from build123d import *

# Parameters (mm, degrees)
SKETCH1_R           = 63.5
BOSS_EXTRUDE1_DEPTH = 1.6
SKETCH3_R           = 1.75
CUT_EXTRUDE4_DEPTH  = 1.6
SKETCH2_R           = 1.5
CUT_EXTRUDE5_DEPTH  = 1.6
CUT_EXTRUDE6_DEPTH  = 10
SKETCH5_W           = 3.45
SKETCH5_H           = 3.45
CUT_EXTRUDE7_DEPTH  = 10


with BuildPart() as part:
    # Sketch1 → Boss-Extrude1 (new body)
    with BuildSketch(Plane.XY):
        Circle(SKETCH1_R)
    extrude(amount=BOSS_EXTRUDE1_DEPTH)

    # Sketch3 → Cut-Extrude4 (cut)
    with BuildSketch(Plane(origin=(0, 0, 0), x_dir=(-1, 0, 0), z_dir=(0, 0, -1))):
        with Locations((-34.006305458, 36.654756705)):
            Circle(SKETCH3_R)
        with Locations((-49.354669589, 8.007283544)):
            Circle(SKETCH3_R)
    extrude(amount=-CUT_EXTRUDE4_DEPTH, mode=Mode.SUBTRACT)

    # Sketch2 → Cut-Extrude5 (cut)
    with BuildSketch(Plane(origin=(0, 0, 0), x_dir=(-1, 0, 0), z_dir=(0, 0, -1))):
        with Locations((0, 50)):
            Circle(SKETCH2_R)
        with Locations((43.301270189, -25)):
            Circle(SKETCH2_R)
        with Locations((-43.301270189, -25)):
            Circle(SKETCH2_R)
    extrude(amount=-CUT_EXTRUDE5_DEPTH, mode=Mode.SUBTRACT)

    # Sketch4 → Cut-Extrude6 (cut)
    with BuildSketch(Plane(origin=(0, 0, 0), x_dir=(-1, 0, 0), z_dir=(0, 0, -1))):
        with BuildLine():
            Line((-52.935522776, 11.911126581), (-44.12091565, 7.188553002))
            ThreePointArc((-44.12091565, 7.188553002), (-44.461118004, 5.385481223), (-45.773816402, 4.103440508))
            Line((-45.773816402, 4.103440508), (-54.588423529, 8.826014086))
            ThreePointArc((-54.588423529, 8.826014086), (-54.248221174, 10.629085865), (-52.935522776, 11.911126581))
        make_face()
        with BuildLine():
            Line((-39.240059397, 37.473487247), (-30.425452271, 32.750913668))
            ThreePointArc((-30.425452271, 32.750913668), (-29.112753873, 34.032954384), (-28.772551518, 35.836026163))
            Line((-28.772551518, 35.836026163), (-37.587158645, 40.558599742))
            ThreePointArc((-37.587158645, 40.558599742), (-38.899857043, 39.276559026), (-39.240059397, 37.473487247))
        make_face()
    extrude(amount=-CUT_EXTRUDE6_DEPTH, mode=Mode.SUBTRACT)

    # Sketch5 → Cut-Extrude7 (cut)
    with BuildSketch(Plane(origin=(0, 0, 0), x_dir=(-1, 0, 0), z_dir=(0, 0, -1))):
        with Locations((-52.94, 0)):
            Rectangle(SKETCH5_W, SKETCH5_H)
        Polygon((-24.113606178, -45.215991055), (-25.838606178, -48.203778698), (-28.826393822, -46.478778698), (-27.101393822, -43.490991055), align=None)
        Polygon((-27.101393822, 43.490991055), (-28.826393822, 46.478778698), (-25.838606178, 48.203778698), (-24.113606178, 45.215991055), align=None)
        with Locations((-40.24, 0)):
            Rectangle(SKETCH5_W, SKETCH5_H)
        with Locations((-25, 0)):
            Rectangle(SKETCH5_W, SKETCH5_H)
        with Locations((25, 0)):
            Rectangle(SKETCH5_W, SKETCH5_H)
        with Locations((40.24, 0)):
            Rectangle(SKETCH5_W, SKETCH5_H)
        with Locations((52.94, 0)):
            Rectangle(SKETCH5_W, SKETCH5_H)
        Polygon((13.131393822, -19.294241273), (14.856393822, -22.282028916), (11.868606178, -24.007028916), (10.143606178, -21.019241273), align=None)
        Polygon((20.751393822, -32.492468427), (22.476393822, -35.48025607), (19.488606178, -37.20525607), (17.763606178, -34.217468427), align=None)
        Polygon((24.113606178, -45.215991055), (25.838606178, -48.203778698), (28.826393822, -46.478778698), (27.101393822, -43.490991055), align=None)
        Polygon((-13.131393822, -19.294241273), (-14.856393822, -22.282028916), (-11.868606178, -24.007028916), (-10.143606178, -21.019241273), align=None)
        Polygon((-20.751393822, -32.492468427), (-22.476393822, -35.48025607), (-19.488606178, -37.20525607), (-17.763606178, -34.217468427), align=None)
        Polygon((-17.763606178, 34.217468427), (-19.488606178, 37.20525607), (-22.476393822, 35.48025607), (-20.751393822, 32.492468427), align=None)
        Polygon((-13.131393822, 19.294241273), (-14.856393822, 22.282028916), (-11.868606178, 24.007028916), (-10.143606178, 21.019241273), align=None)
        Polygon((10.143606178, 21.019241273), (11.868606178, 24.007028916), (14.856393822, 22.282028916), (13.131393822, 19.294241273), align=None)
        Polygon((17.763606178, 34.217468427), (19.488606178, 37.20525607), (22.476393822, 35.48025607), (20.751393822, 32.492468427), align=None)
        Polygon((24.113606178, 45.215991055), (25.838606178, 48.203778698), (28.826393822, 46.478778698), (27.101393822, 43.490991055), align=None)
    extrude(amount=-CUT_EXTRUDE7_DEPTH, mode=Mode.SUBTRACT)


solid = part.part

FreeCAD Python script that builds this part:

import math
import FreeCAD as App
import Part
import Sketcher
Q = App.Units.Quantity


def add_polygon(sketch, points):
    """Adds a closed chain of lines whose ends are joined by coincident constraints."""
    first, n = sketch.GeometryCount, len(points)
    for a, b in zip(points, points[1:] + points[:1]):
        sketch.addGeometry(Part.LineSegment(App.Vector(*a, 0), App.Vector(*b, 0)), False)
    for i in range(n):
        sketch.addConstraint(Sketcher.Constraint("Coincident", first + i, 2, first + (i + 1) % n, 1))

doc = App.newDocument("Part")
body = doc.addObject("PartDesign::Body", "Body")

sketch1 = doc.addObject("Sketcher::SketchObject", "Sketch")
body.addObject(sketch1)
sketch1.AttachmentSupport = (doc.XY_Plane, [""])
sketch1.MapMode = "FlatFace"
sketch1.addGeometry(Part.Circle(App.Vector(0, 0, 0), App.Vector(0, 0, 1), 64), False)
sketch1.addConstraint([
    Sketcher.Constraint("Coincident", 0, 3, -1, 1),
    Sketcher.Constraint("Diameter", 0, Q("127 mm")),
])
pad1 = doc.addObject("PartDesign::Pad", "Pad")
body.addObject(pad1)
pad1.Profile = sketch1
pad1.Length = 1.6

sketch2 = doc.addObject("Sketcher::SketchObject", "Sketch001")
body.addObject(sketch2)
sketch2.AttachmentSupport = (doc.XY_Plane, [""])
sketch2.MapMode = "FlatFace"
sketch2.addGeometry([
    Part.Circle(App.Vector(34, 36.7, 0), App.Vector(0, 0, 1), 1.8),
    Part.Circle(App.Vector(49.4, 8, 0), App.Vector(0, 0, 1), 1.8),
], False)
sketch2.addConstraint([
    Sketcher.Constraint("Equal", 0, 1),
    Sketcher.Constraint("Diameter", 0, Q("3.5 mm")),
    Sketcher.Constraint("DistanceX", -1, 1, 1, 3, Q("49.35467 mm")),
    Sketcher.Constraint("DistanceX", -1, 1, 0, 3, Q("34.006305 mm")),
    Sketcher.Constraint("DistanceY", -1, 1, 0, 3, Q("36.654757 mm")),
    Sketcher.Constraint("DistanceY", -1, 1, 1, 3, Q("8.007284 mm")),
])
pocket1 = doc.addObject("PartDesign::Pocket", "Pocket")
body.addObject(pocket1)
pocket1.Profile = sketch2
pocket1.Length = 1.6
pocket1.Reversed = True

sketch3 = doc.addObject("Sketcher::SketchObject", "Sketch002")
body.addObject(sketch3)
sketch3.AttachmentSupport = (doc.XY_Plane, [""])
sketch3.MapMode = "FlatFace"
sketch3.addGeometry([
    Part.Circle(App.Vector(0, 50, 0), App.Vector(0, 0, 1), 1.5),
    Part.Circle(App.Vector(-43.3, -25, 0), App.Vector(0, 0, 1), 1.5),
    Part.Circle(App.Vector(43.3, -25, 0), App.Vector(0, 0, 1), 1.5),
], False)
sketch3.addConstraint([
    Sketcher.Constraint("Equal", 0, 1),
    Sketcher.Constraint("Equal", 1, 2),
    Sketcher.Constraint("Symmetric", 1, 3, 2, 3, -2),
    Sketcher.Constraint("PointOnObject", 0, 3, -2),
    Sketcher.Constraint("Diameter", 0, Q("3 mm")),
    Sketcher.Constraint("DistanceY", -1, 1, 0, 3, Q("50 mm")),
    Sketcher.Constraint("DistanceY", 1, 3, -1, 1, Q("25 mm")),
    Sketcher.Constraint("DistanceX", 1, 3, -1, 1, Q("43.30127 mm")),
])
pocket2 = doc.addObject("PartDesign::Pocket", "Pocket001")
body.addObject(pocket2)
pocket2.Profile = sketch3
pocket2.Length = 1.6
pocket2.Reversed = True

sketch4 = doc.addObject("Sketcher::SketchObject", "Sketch003")
body.addObject(sketch4)
sketch4.AttachmentSupport = (doc.XY_Plane, [""])
sketch4.MapMode = "FlatFace"
sketch4.addGeometry([
    Part.LineSegment(App.Vector(44.1, 7.2, 0), App.Vector(52.9, 11.9, 0)),
    Part.ArcOfCircle(Part.Circle(App.Vector(51.6, 9.2, 0), App.Vector(0, 0, 1), 3.1), math.radians(-7), math.radians(63)),
    Part.LineSegment(App.Vector(54.6, 8.8, 0), App.Vector(45.8, 4.1, 0)),
    Part.ArcOfCircle(Part.Circle(App.Vector(47.2, 6.8, 0), App.Vector(0, 0, 1), 3.1), math.radians(173), math.radians(243)),
    Part.LineSegment(App.Vector(39.2, 37.5, 0), App.Vector(30.4, 32.8, 0)),
    Part.ArcOfCircle(Part.Circle(App.Vector(31.8, 35.5, 0), App.Vector(0, 0, 1), 3.1), math.radians(173), math.radians(243)),
    Part.LineSegment(App.Vector(28.8, 35.8, 0), App.Vector(37.6, 40.6, 0)),
    Part.ArcOfCircle(Part.Circle(App.Vector(36.2, 37.8, 0), App.Vector(0, 0, 1), 3.1), math.radians(-7), math.radians(63)),
], False)
sketch4.addConstraint([
    Sketcher.Constraint("Coincident", 0, 2, 1, 2),
    Sketcher.Constraint("Coincident", 1, 1, 2, 1),
    Sketcher.Constraint("Coincident", 2, 2, 3, 2),
    Sketcher.Constraint("Coincident", 3, 1, 0, 1),
    Sketcher.Constraint("Coincident", 4, 2, 5, 2),
    Sketcher.Constraint("Coincident", 5, 1, 6, 1),
    Sketcher.Constraint("Coincident", 6, 2, 7, 2),
    Sketcher.Constraint("Coincident", 7, 1, 4, 1),
    Sketcher.Constraint("Equal", 1, 3),
    Sketcher.Constraint("Equal", 3, 5),
    Sketcher.Constraint("Equal", 5, 7),
    Sketcher.Constraint("Parallel", 0, 2),
    Sketcher.Constraint("Parallel", 2, 4),
    Sketcher.Constraint("Parallel", 4, 6),
    Sketcher.Constraint("Equal", 0, 2),
    Sketcher.Constraint("Equal", 2, 4),
    Sketcher.Constraint("Equal", 4, 6),
    Sketcher.Constraint("Distance", 0, Q("10 mm")),
    Sketcher.Constraint("Radius", 1, Q("3.051639 mm")),
    Sketcher.Constraint("DistanceY", -1, 1, 7, 3, Q("37.8354 mm")),
    Sketcher.Constraint("DistanceY", -1, 1, 6, 2, Q("40.5586 mm")),
    Sketcher.Constraint("DistanceX", 1, 3, 0, 2, Q("1.377201 mm")),
    Sketcher.Constraint("DistanceX", 0, 2, 1, 1, Q("1.652901 mm")),
    Sketcher.Constraint("DistanceY", 1, 1, 5, 3, Q("26.648099 mm")),
    Sketcher.Constraint("DistanceX", 5, 1, 4, 2, Q("1.652901 mm")),
    Sketcher.Constraint("DistanceX", -1, 1, 1, 3, Q("51.558321 mm")),
    Sketcher.Constraint("DistanceY", -1, 1, 3, 3, Q("6.82664 mm")),
    Sketcher.Constraint("DistanceX", -1, 1, 5, 1, Q("28.772552 mm")),
])
pocket3 = doc.addObject("PartDesign::Pocket", "Pocket002")
body.addObject(pocket3)
pocket3.Profile = sketch4
pocket3.Length = 10
pocket3.Reversed = True

sketch5 = doc.addObject("Sketcher::SketchObject", "Sketch004")
body.addObject(sketch5)
sketch5.AttachmentSupport = (doc.XY_Plane, [""])
sketch5.MapMode = "FlatFace"
add_polygon(sketch5, [(54.7, 1.7), (54.7, -1.7), (51.2, -1.7), (51.2, 1.7)])
add_polygon(sketch5, [(25.8, -48.2), (24.1, -45.2), (27.1, -43.5), (28.8, -46.5)])
add_polygon(sketch5, [(28.8, 46.5), (27.1, 43.5), (24.1, 45.2), (25.8, 48.2)])
add_polygon(sketch5, [(42, 1.7), (42, -1.7), (38.5, -1.7), (38.5, 1.7)])
add_polygon(sketch5, [(26.7, 1.7), (26.7, -1.7), (23.3, -1.7), (23.3, 1.7)])
add_polygon(sketch5, [(-23.3, 1.7), (-23.3, -1.7), (-26.7, -1.7), (-26.7, 1.7)])
add_polygon(sketch5, [(-38.5, 1.7), (-38.5, -1.7), (-42, -1.7), (-42, 1.7)])
add_polygon(sketch5, [(-51.2, 1.7), (-51.2, -1.7), (-54.7, -1.7), (-54.7, 1.7)])
add_polygon(sketch5, [(-14.9, -22.3), (-13.1, -19.3), (-10.1, -21), (-11.9, -24)])
add_polygon(sketch5, [(-22.5, -35.5), (-20.8, -32.5), (-17.8, -34.2), (-19.5, -37.2)])
add_polygon(sketch5, [(-24.1, -45.2), (-25.8, -48.2), (-28.8, -46.5), (-27.1, -43.5)])
add_polygon(sketch5, [(13.1, -19.3), (14.9, -22.3), (11.9, -24), (10.1, -21)])
add_polygon(sketch5, [(20.8, -32.5), (22.5, -35.5), (19.5, -37.2), (17.8, -34.2)])
add_polygon(sketch5, [(17.8, 34.2), (19.5, 37.2), (22.5, 35.5), (20.8, 32.5)])
add_polygon(sketch5, [(14.9, 22.3), (13.1, 19.3), (10.1, 21), (11.9, 24)])
add_polygon(sketch5, [(-11.9, 24), (-10.1, 21), (-13.1, 19.3), (-14.9, 22.3)])
add_polygon(sketch5, [(-19.5, 37.2), (-17.8, 34.2), (-20.8, 32.5), (-22.5, 35.5)])
add_polygon(sketch5, [(-25.8, 48.2), (-24.1, 45.2), (-27.1, 43.5), (-28.8, 46.5)])
sketch5.addConstraint([
    Sketcher.Constraint("Vertical", 0),
    Sketcher.Constraint("Horizontal", 1),
    Sketcher.Constraint("Vertical", 2),
    Sketcher.Constraint("Horizontal", 3),
    Sketcher.Constraint("Vertical", 12),
    Sketcher.Constraint("Horizontal", 13),
    Sketcher.Constraint("Vertical", 14),
    Sketcher.Constraint("Horizontal", 15),
    Sketcher.Constraint("Vertical", 16),
    Sketcher.Constraint("Horizontal", 17),
    Sketcher.Constraint("Vertical", 18),
    Sketcher.Constraint("Horizontal", 19),
    Sketcher.Constraint("Vertical", 20),
    Sketcher.Constraint("Horizontal", 21),
    Sketcher.Constraint("Vertical", 22),
    Sketcher.Constraint("Horizontal", 23),
    Sketcher.Constraint("Vertical", 24),
    Sketcher.Constraint("Horizontal", 25),
    Sketcher.Constraint("Vertical", 26),
    Sketcher.Constraint("Horizontal", 27),
    Sketcher.Constraint("Vertical", 28),
    Sketcher.Constraint("Horizontal", 29),
    Sketcher.Constraint("Vertical", 30),
    Sketcher.Constraint("Horizontal", 31),
    Sketcher.Constraint("Symmetric", 18, 2, 20, 2, -1, 1),
    Sketcher.Constraint("Symmetric", 16, 2, 22, 2, -1, 1),
    Sketcher.Constraint("Symmetric", 14, 2, 24, 2, -1, 1),
    Sketcher.Constraint("Symmetric", 12, 2, 26, 2, -1, 1),
    Sketcher.Constraint("Symmetric", 2, 2, 28, 2, -1, 1),
    Sketcher.Constraint("Symmetric", 0, 2, 30, 2, -1, 1),
    Sketcher.Constraint("Symmetric", 10, 2, 40, 2, -1, 1),
    Sketcher.Constraint("Symmetric", 11, 2, 41, 2, -1, 1),
    Sketcher.Constraint("Symmetric", 8, 2, 42, 2, -1, 1),
    Sketcher.Constraint("Symmetric", 9, 2, 43, 2, -1, 1),
    Sketcher.Constraint("Symmetric", 38, 2, 52, 2, -1, 1),
    Sketcher.Constraint("Symmetric", 39, 2, 53, 2, -1, 1),
    Sketcher.Constraint("Symmetric", 36, 2, 54, 2, -1, 1),
    Sketcher.Constraint("Symmetric", 37, 2, 55, 2, -1, 1),
    Sketcher.Constraint("Symmetric", 32, 2, 56, 2, -1, 1),
    Sketcher.Constraint("Symmetric", 33, 2, 57, 2, -1, 1),
    Sketcher.Constraint("Symmetric", 34, 2, 58, 2, -1, 1),
    Sketcher.Constraint("Symmetric", 35, 2, 59, 2, -1, 1),
    Sketcher.Constraint("Symmetric", 46, 2, 60, 2, -1, 1),
    Sketcher.Constraint("Symmetric", 47, 2, 61, 2, -1, 1),
    Sketcher.Constraint("Symmetric", 44, 2, 62, 2, -1, 1),
    Sketcher.Constraint("Symmetric", 45, 2, 63, 2, -1, 1),
    Sketcher.Constraint("Symmetric", 50, 2, 64, 2, -1, 1),
    Sketcher.Constraint("Symmetric", 51, 2, 65, 2, -1, 1),
    Sketcher.Constraint("Symmetric", 48, 2, 66, 2, -1, 1),
    Sketcher.Constraint("Symmetric", 49, 2, 67, 2, -1, 1),
    Sketcher.Constraint("Symmetric", 4, 2, 68, 2, -1, 1),
    Sketcher.Constraint("Symmetric", 5, 2, 69, 2, -1, 1),
    Sketcher.Constraint("Symmetric", 6, 2, 70, 2, -1, 1),
    Sketcher.Constraint("Symmetric", 7, 2, 71, 2, -1, 1),
    Sketcher.Constraint("Symmetric", 7, 2, 40, 2, -2),
    Sketcher.Constraint("Symmetric", 6, 2, 41, 2, -2),
    Sketcher.Constraint("Symmetric", 5, 2, 42, 2, -2),
    Sketcher.Constraint("Symmetric", 4, 2, 43, 2, -2),
    Sketcher.Constraint("Symmetric", 35, 2, 44, 2, -2),
    Sketcher.Constraint("Symmetric", 34, 2, 45, 2, -2),
    Sketcher.Constraint("Symmetric", 33, 2, 46, 2, -2),
    Sketcher.Constraint("Symmetric", 32, 2, 47, 2, -2),
    Sketcher.Constraint("Symmetric", 39, 2, 48, 2, -2),
    Sketcher.Constraint("Symmetric", 38, 2, 49, 2, -2),
    Sketcher.Constraint("Symmetric", 37, 2, 50, 2, -2),
    Sketcher.Constraint("Symmetric", 36, 2, 51, 2, -2),
    Sketcher.Constraint("Perpendicular", 4, 5),
    Sketcher.Constraint("Perpendicular", 5, 6),
    Sketcher.Constraint("Perpendicular", 6, 7),
    Sketcher.Constraint("Perpendicular", 11, 32),
    Sketcher.Constraint("Perpendicular", 32, 33),
    Sketcher.Constraint("Perpendicular", 33, 34),
    Sketcher.Constraint("Perpendicular", 34, 35),
    Sketcher.Constraint("Perpendicular", 35, 36),
    Sketcher.Constraint("Perpendicular", 36, 37),
    Sketcher.Constraint("Perpendicular", 37, 38),
    Sketcher.Constraint("Perpendicular", 38, 39),
    Sketcher.Constraint("Horizontal", 1, 2, 12, 2),
    Sketcher.Constraint("Horizontal", 3, 2, 14, 2),
    Sketcher.Constraint("Horizontal", 13, 2, 16, 2),
    Sketcher.Constraint("Horizontal", 15, 2, 18, 2),
    Sketcher.Constraint("Horizontal", 17, 2, 20, 2),
    Sketcher.Constraint("Equal", 3, 13),
    Sketcher.Constraint("Equal", 15, 17),
    Sketcher.Constraint("Equal", 31, 0),
    Sketcher.Constraint("Equal", 4, 5),
    Sketcher.Constraint("Equal", 11, 32),
    Sketcher.Constraint("Equal", 32, 33),
    Sketcher.Constraint("Equal", 35, 36),
    Sketcher.Constraint("Equal", 36, 37),
    Sketcher.Constraint("Angle", 4, Q("120 deg")),
    Sketcher.Constraint("DistanceX", 1, 2, 1, 1, Q("3.45 mm")),
    Sketcher.Constraint("Distance", 4, Q("3.45 mm")),
    Sketcher.Constraint("DistanceX", -1, 1, 0, 2, Q("54.665 mm")),
    Sketcher.Constraint("DistanceX", -1, 1, 12, 2, Q("41.965 mm")),
    Sketcher.Constraint("DistanceX", -1, 1, 16, 2, Q("26.725 mm")),
    Sketcher.Constraint("DistanceY", 4, 2, -1, 1, Q("45.215991 mm")),
    Sketcher.Constraint("DistanceY", 32, 2, -1, 1, Q("19.294241 mm")),
    Sketcher.Constraint("DistanceY", 36, 2, -1, 1, Q("32.492468 mm")),
    Sketcher.Constraint("DistanceX", -1, 1, 4, 2, Q("24.113606 mm")),
    Sketcher.Constraint("DistanceX", 32, 2, -1, 1, Q("13.131394 mm")),
    Sketcher.Constraint("DistanceX", 36, 2, -1, 1, Q("20.751394 mm")),
])
pocket4 = doc.addObject("PartDesign::Pocket", "Pocket003")
body.addObject(pocket4)
pocket4.Profile = sketch5
pocket4.Length = 10
pocket4.Reversed = True

doc.recompute()
